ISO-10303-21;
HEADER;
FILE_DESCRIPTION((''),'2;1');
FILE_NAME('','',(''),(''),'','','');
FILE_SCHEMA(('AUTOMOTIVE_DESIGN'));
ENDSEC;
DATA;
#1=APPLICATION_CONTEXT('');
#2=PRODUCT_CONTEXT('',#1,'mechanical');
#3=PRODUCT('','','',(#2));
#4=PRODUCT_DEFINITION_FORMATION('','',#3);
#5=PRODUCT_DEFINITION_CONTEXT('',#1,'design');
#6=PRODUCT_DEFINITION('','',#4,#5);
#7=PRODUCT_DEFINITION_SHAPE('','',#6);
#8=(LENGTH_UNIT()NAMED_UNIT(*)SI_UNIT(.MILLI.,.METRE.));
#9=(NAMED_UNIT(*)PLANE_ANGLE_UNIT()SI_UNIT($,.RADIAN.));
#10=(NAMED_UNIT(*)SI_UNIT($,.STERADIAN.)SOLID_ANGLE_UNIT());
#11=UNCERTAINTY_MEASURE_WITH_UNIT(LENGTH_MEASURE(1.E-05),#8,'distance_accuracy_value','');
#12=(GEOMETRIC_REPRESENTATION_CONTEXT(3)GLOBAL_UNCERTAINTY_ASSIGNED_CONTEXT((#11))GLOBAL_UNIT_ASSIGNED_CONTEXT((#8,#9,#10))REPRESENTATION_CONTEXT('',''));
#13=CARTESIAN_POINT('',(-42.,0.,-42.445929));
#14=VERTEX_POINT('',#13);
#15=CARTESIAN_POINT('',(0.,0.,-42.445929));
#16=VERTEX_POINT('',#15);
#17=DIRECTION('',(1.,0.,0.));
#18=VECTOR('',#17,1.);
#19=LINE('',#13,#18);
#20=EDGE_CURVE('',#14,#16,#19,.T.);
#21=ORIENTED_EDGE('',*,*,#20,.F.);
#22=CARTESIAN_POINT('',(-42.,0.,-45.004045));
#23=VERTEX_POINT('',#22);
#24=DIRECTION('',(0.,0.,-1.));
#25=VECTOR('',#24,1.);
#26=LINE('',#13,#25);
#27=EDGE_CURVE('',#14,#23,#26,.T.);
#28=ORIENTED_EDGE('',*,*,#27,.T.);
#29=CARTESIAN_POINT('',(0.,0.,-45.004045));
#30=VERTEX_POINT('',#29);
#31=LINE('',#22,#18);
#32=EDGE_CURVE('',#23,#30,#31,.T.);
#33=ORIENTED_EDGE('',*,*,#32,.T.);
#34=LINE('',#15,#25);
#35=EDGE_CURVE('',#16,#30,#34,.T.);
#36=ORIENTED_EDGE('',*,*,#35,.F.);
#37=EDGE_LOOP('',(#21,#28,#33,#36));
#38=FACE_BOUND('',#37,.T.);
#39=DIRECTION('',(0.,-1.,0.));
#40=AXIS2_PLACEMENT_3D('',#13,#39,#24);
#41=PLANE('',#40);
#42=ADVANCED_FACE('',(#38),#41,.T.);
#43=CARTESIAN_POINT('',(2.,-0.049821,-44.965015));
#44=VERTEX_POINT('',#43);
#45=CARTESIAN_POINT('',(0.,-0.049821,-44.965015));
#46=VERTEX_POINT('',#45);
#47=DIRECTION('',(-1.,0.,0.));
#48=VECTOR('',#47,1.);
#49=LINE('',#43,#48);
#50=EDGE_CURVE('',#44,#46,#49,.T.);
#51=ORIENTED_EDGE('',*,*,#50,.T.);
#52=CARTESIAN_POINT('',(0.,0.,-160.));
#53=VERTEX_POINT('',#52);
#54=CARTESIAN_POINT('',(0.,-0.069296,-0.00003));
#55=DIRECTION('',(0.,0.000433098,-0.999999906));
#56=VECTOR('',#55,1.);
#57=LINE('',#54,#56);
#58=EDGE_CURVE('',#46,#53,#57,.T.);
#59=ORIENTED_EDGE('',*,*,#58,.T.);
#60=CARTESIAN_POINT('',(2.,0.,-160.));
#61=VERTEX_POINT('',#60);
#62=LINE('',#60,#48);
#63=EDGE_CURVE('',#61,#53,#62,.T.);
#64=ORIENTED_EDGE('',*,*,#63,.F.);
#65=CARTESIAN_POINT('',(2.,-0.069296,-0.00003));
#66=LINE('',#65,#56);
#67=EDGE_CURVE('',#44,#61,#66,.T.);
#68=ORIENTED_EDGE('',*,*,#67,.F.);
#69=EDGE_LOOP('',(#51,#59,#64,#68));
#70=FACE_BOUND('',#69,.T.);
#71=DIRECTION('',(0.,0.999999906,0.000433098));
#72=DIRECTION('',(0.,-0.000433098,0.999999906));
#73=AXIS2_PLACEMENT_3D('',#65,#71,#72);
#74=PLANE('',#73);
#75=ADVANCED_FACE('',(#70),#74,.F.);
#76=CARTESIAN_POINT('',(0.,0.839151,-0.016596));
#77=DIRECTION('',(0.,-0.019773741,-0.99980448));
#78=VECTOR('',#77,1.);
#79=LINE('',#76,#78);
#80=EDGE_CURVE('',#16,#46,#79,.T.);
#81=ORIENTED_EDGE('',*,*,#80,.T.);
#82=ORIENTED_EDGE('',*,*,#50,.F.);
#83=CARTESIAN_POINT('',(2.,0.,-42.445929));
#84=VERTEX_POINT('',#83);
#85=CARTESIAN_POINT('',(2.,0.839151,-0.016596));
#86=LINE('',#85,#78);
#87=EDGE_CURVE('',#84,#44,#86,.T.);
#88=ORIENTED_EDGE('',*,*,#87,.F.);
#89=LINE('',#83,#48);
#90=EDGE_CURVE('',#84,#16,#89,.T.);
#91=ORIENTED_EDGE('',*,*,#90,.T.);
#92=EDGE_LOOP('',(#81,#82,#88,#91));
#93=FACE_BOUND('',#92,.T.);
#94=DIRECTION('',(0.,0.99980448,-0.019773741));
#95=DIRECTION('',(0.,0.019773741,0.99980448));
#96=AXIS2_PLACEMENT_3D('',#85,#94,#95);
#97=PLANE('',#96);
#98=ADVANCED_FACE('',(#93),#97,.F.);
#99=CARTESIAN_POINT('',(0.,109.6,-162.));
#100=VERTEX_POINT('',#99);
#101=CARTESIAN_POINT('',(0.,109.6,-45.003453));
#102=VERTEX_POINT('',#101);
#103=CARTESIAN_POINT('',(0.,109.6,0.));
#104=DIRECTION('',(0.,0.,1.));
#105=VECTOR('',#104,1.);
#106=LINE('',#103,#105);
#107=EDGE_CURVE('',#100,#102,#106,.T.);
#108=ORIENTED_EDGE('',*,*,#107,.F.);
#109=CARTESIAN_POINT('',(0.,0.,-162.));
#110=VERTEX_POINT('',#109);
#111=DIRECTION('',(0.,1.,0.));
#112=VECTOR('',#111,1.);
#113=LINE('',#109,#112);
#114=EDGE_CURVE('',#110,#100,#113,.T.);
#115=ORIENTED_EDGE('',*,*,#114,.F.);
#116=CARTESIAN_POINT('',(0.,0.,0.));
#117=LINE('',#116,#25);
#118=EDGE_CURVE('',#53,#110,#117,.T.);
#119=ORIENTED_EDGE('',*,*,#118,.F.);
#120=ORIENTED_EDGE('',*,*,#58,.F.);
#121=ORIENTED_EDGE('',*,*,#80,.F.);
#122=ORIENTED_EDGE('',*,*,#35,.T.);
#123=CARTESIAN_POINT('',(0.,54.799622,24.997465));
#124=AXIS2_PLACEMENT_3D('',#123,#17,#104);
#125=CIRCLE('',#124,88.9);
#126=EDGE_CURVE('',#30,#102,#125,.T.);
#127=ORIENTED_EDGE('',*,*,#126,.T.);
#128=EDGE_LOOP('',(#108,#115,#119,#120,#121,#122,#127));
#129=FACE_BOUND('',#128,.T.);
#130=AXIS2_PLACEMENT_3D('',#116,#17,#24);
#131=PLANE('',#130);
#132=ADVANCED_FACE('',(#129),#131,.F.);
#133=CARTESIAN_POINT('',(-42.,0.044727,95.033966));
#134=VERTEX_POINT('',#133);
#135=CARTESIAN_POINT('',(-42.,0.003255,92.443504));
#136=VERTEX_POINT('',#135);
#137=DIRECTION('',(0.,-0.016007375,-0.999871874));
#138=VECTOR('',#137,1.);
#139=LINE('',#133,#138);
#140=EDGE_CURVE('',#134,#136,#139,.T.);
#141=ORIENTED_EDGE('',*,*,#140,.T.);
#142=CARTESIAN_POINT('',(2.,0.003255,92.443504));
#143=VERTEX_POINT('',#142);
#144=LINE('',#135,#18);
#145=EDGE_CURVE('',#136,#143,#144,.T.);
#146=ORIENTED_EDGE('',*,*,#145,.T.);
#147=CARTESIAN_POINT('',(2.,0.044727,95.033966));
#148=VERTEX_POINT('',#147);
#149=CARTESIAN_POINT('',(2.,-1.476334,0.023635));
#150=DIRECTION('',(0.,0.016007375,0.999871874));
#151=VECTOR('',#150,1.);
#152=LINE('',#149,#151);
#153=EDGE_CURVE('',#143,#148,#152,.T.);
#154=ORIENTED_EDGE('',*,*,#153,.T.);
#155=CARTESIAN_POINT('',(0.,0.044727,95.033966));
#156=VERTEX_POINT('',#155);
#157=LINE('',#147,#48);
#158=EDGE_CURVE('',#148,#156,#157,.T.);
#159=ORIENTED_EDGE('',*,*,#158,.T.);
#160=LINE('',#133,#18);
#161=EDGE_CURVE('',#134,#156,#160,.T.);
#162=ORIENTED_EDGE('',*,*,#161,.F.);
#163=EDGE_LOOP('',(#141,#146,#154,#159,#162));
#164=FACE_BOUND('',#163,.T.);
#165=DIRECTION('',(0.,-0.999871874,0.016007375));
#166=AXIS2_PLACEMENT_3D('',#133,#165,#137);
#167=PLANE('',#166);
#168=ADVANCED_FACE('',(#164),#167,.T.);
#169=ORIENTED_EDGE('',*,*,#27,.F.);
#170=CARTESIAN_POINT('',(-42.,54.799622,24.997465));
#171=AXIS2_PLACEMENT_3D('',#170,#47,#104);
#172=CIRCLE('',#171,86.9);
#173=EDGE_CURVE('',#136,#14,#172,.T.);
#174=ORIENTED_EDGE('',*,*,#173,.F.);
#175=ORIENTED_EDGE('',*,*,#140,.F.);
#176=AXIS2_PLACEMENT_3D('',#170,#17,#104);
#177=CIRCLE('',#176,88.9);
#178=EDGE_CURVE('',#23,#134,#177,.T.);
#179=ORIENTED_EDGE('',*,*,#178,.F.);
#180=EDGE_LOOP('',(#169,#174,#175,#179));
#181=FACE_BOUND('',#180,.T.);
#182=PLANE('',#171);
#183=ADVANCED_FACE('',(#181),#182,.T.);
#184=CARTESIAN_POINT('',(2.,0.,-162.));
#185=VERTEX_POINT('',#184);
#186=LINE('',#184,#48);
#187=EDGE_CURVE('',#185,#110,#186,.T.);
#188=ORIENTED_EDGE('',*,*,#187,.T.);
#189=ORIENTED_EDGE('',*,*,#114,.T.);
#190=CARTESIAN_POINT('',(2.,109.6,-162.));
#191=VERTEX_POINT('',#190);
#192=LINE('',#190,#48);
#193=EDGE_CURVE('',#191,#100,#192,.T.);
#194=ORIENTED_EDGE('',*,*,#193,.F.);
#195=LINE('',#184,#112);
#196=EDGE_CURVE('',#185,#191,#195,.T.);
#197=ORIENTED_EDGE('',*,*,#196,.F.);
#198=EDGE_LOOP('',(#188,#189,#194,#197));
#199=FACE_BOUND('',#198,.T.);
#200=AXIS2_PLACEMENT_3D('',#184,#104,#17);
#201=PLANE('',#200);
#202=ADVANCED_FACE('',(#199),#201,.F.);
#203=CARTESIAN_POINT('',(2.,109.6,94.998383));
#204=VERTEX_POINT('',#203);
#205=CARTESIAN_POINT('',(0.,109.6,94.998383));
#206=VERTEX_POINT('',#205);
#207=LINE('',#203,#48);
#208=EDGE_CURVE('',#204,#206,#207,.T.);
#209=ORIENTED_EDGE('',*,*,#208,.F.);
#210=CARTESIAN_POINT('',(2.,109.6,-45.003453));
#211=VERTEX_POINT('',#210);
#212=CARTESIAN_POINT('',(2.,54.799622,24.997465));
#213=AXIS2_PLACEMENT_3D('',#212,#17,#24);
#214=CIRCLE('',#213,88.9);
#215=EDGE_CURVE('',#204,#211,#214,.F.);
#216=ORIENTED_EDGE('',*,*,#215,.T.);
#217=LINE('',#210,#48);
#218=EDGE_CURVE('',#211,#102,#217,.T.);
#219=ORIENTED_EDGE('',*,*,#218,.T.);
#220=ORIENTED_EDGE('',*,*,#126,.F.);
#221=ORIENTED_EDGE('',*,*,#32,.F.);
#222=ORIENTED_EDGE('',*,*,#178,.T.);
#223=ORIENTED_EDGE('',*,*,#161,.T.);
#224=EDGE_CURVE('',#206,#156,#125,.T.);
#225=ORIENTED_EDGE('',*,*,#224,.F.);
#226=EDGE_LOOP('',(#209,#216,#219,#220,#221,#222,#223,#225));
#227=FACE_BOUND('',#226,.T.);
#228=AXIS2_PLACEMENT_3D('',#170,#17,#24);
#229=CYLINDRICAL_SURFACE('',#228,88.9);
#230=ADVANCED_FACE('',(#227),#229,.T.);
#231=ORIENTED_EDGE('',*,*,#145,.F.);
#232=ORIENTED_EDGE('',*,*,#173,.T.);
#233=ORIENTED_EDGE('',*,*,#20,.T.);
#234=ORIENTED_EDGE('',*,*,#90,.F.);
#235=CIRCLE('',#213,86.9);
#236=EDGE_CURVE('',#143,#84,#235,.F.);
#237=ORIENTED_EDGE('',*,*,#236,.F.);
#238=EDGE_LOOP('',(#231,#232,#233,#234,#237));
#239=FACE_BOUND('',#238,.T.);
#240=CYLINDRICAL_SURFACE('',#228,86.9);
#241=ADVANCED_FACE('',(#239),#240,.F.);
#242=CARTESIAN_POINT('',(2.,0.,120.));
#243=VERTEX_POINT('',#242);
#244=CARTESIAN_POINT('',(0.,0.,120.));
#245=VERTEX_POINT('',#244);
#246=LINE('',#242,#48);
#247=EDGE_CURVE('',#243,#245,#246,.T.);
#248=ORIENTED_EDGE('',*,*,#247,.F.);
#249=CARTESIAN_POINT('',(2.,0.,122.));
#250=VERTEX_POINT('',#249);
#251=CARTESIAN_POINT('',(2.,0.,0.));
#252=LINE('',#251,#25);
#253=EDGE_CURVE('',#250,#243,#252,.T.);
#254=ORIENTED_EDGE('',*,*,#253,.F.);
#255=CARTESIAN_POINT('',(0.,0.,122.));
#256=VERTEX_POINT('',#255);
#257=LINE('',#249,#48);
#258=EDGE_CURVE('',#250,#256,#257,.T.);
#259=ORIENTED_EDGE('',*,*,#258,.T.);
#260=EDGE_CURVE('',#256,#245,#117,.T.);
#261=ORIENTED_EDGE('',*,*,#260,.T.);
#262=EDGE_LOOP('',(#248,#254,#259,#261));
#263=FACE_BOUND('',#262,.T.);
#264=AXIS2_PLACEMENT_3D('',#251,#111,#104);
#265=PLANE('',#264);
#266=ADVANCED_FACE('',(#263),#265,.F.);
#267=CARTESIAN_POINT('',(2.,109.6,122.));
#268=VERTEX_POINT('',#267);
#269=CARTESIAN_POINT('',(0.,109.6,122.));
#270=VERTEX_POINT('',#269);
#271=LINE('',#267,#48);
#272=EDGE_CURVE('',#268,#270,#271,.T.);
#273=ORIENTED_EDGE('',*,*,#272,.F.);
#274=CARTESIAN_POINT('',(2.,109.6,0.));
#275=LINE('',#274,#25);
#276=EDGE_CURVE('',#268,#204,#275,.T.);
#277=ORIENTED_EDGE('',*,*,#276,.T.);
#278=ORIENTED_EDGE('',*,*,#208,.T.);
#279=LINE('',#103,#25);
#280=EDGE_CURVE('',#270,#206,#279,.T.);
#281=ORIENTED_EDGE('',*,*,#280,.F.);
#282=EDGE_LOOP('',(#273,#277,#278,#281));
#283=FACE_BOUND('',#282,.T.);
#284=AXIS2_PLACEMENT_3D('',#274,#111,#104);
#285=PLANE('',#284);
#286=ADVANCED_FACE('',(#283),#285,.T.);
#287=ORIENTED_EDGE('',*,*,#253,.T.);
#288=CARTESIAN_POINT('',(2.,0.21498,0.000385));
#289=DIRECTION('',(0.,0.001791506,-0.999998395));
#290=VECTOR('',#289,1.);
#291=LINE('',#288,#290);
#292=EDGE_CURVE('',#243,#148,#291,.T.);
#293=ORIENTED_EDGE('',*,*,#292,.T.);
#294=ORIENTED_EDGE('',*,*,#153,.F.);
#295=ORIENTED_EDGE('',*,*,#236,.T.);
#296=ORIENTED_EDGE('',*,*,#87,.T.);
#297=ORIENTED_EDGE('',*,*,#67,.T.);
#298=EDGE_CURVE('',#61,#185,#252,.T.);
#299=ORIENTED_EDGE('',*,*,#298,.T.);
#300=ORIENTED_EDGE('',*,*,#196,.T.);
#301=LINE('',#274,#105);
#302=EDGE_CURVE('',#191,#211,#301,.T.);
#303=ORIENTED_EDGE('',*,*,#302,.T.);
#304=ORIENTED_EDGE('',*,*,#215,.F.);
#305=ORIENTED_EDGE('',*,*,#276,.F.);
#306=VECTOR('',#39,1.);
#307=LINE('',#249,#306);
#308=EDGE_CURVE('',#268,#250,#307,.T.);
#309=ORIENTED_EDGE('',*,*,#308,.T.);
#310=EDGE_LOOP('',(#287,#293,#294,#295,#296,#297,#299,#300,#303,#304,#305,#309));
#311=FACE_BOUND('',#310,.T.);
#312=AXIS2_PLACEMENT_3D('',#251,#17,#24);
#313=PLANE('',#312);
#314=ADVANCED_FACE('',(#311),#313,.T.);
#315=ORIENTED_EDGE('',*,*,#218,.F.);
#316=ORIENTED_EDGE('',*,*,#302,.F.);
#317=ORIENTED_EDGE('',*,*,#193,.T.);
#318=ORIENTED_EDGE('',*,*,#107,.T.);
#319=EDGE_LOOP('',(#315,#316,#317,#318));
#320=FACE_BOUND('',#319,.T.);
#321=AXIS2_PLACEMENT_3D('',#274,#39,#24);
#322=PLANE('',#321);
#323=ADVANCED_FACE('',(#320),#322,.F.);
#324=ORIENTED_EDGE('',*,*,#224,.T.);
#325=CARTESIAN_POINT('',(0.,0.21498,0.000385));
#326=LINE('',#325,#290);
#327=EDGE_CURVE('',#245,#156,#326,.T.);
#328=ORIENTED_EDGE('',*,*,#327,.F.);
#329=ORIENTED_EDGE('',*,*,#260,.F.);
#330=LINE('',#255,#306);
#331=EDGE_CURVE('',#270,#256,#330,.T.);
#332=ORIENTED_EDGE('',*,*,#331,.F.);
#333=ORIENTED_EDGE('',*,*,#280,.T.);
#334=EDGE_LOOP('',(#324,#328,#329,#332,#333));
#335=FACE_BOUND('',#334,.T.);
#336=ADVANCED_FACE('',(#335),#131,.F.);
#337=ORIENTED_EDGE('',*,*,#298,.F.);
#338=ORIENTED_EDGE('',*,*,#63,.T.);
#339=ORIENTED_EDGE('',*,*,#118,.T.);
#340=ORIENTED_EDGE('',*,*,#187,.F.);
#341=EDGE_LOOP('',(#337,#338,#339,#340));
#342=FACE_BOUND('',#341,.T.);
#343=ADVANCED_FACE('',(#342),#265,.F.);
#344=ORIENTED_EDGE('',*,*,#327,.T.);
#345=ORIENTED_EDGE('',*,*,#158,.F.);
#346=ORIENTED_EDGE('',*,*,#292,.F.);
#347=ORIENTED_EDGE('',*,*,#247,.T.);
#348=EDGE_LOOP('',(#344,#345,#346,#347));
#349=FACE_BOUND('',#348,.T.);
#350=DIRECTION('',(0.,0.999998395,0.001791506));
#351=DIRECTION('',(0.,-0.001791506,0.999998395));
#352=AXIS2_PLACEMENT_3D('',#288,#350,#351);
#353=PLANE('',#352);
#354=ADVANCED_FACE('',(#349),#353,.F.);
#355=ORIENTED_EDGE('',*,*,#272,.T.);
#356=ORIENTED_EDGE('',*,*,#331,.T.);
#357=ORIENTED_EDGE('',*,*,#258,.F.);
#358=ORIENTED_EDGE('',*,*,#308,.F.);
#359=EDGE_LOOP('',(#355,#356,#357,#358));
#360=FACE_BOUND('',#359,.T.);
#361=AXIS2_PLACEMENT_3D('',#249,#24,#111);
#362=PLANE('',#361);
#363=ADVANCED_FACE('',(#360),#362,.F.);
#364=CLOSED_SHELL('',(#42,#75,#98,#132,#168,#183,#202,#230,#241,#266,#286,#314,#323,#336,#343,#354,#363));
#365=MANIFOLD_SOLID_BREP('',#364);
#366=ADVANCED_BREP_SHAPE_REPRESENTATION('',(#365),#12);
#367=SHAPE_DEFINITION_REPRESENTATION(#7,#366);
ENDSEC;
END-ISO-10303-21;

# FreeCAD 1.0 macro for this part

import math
import FreeCAD as App
import Part
import Sketcher
from FreeCAD import Vector

doc = App.newDocument("Part")
body = doc.addObject("PartDesign::Body", "Body")

sketch1 = body.newObject("Sketcher::SketchObject", "Sketch")
sketch1.AttachmentSupport = (doc.getObject("YZ_Plane"), [""])
sketch1.MapMode = "FlatFace"
sketch1.addGeometry([
    Part.LineSegment(Vector(0, 95, 0), Vector(0, 92.4, 0)),
    Part.ArcOfCircle(Part.Circle(Vector(54.8, 25, 0), Vector(0, 0, 1), 86.9), math.radians(-129), math.radians(129)),
    Part.LineSegment(Vector(0, -42.4, 0), Vector(0, -45, 0)),
    Part.ArcOfCircle(Part.Circle(Vector(54.8, 25, 0), Vector(0, 0, 1), 88.9), math.radians(-128), math.radians(128)),
], False)
sketch1.addConstraint([
    Sketcher.Constraint("Coincident", 0, 2, 1, 2),
    Sketcher.Constraint("Coincident", 1, 1, 2, 1),
    Sketcher.Constraint("Coincident", 2, 2, 3, 1),
    Sketcher.Constraint("Coincident", 3, 2, 0, 1),
    Sketcher.Constraint("Vertical", 2),
    Sketcher.Constraint("Coincident", 3, 3, 1, 3),
    Sketcher.Constraint("PointOnObject", 1, 1, -2),
    Sketcher.Constraint("Radius", 1, 86.9),
    Sketcher.Constraint("Radius", 3, 88.9),
    Sketcher.Constraint("DistanceY", 1, 3, 3, 2, 70.036501),
    Sketcher.Constraint("DistanceY", 2, 2, 2, 1, 2.558116),
    Sketcher.Constraint("DistanceY", 1, 1, -1, 1, 42.445929),
    Sketcher.Constraint("DistanceY", 1, 3, 0, 2, 67.446039),
])
pad1 = body.newObject("PartDesign::Pad", "Pad")
pad1.Profile = sketch1
pad1.Length = 42
pad1.Reversed = True

sketch2 = body.newObject("Sketcher::SketchObject", "Sketch001")
sketch2.AttachmentSupport = (doc.getObject("YZ_Plane"), [""])
sketch2.MapMode = "FlatFace"
sketch2.AttachmentOffset = App.Placement(Vector(0, 0, 2), App.Rotation())
sketch2.addGeometry([
    Part.LineSegment(Vector(0, 122, 0), Vector(0, 120, 0)),
    Part.LineSegment(Vector(0, 120, 0), Vector(0, 95, 0)),
    Part.ArcOfCircle(Part.Circle(Vector(54.8, 25, 0), Vector(0, 0, 1), 88.9), math.radians(52), math.radians(128)),
    Part.LineSegment(Vector(109.6, 95, 0), Vector(109.6, 122, 0)),
    Part.LineSegment(Vector(109.6, 122, 0), Vector(0, 122, 0)),
    Part.ArcOfCircle(Part.Circle(Vector(54.8, 25, 0), Vector(0, 0, 1), 88.9), math.radians(52), math.radians(128)),
    Part.LineSegment(Vector(0, 95, 0), Vector(0, 92.4, 0)),
    Part.ArcOfCircle(Part.Circle(Vector(54.8, 25, 0), Vector(0, 0, 1), 86.9), math.radians(-129), math.radians(129)),
    Part.LineSegment(Vector(0, -42.4, 0), Vector(0, -45, 0)),
    Part.ArcOfCircle(Part.Circle(Vector(54.8, 25, 0), Vector(0, 0, 1), 88.9), math.radians(-128), math.radians(-52)),
    Part.ArcOfCircle(Part.Circle(Vector(54.8, 25, 0), Vector(0, 0, 1), 88.9), math.radians(-52), math.radians(52)),
    Part.LineSegment(Vector(109.6, -50, 0), Vector(109.6, -45, 0)),
    Part.ArcOfCircle(Part.Circle(Vector(54.8, 25, 0), Vector(0, 0, 1), 88.9), math.radians(-128), math.radians(-52)),
    Part.LineSegment(Vector(0, -45, 0), Vector(0, -160, 0)),
    Part.LineSegment(Vector(0, -160, 0), Vector(0, -162, 0)),
    Part.LineSegment(Vector(0, -162, 0), Vector(109.6, -162, 0)),
    Part.LineSegment(Vector(109.6, -162, 0), Vector(109.6, -160, 0)),
    Part.LineSegment(Vector(109.6, -160, 0), Vector(109.6, -50, 0)),
], False)
sketch2.addConstraint([
    Sketcher.Constraint("Coincident", 0, 2, 1, 1),
    Sketcher.Constraint("Coincident", 1, 2, 2, 2),
    Sketcher.Constraint("Coincident", 2, 1, 3, 1),
    Sketcher.Constraint("Coincident", 3, 2, 4, 1),
    Sketcher.Constraint("Coincident", 4, 2, 0, 1),
    Sketcher.Constraint("Coincident", 5, 2, 6, 1),
    Sketcher.Constraint("Coincident", 6, 2, 7, 2),
    Sketcher.Constraint("Coincident", 7, 1, 8, 1),
    Sketcher.Constraint("Coincident", 8, 2, 9, 1),
    Sketcher.Constraint("Tangent", 9, 2, 10, 1),
    Sketcher.Constraint("Tangent", 10, 2, 5, 1),
    Sketcher.Constraint("Coincident", 11, 2, 12, 2),
    Sketcher.Constraint("Coincident", 12, 1, 13, 1),
    Sketcher.Constraint("Coincident", 13, 2, 14, 1),
    Sketcher.Constraint("Coincident", 14, 2, 15, 1),
    Sketcher.Constraint("Coincident", 15, 2, 16, 1),
    Sketcher.Constraint("Coincident", 16, 2, 17, 1),
    Sketcher.Constraint("Coincident", 17, 2, 11, 1),
    Sketcher.Constraint("Vertical", 0),
    Sketcher.Constraint("Vertical", 3),
    Sketcher.Constraint("Horizontal", 4),
    Sketcher.Constraint("Vertical", 11),
    Sketcher.Constraint("Vertical", 14),
    Sketcher.Constraint("Horizontal", 15),
    Sketcher.Constraint("Vertical", 16),
    Sketcher.Constraint("Vertical", 17),
    Sketcher.Constraint("Coincident", 5, 3, 2, 3),
    Sketcher.Constraint("Coincident", 7, 3, 2, 3),
    Sketcher.Constraint("Coincident", 9, 3, 2, 3),
    Sketcher.Constraint("Coincident", 12, 3, 2, 3),
    Sketcher.Constraint("Coincident", 5, 2, 1, 2),
    Sketcher.Constraint("Coincident", 11, 2, 9, 2),
    Sketcher.Constraint("PointOnObject", 0, 2, -2),
    Sketcher.Constraint("PointOnObject", 7, 1, -2),
    Sketcher.Constraint("PointOnObject", 13, 2, -2),
    Sketcher.Constraint("Horizontal", 13, 2, 16, 2),
    Sketcher.Constraint("Vertical", 3, 2, 9, 2),
    Sketcher.Constraint("Vertical", 9, 2, 10, 2),
    Sketcher.Constraint("Equal", 0, 14),
    Sketcher.Constraint("Radius", 2, 88.9),
    Sketcher.Constraint("Radius", 7, 86.9),
    Sketcher.Constraint("DistanceY", 0, 2, 0, 1, 2.0),
    Sketcher.Constraint("DistanceY", 17, 1, 17, 2, 110.0),
    Sketcher.Constraint("DistanceX", 4, 2, 4, 1, 109.6),
    Sketcher.Constraint("DistanceY", -1, 1, 0, 2, 120.0),
    Sketcher.Constraint("DistanceY", 13, 2, -1, 1, 160.0),
    Sketcher.Constraint("DistanceY", 7, 3, 1, 2, 70.036501),
    Sketcher.Constraint("Distance", 8, 2.519578),
    Sketcher.Constraint("DistanceY", 3, 1, 3, 2, 27.001617),
    Sketcher.Constraint("DistanceY", 11, 1, 11, 2, 4.996547),
    Sketcher.Constraint("DistanceX", 12, 1, -1, 1, 0.049821),
    Sketcher.Constraint("DistanceX", 6, 2, 5, 2, 0.041472),
])
pad2 = body.newObject("PartDesign::Pad", "Pad001")
pad2.Profile = sketch2
pad2.Length = 2
pad2.Reversed = True

doc.recompute()
